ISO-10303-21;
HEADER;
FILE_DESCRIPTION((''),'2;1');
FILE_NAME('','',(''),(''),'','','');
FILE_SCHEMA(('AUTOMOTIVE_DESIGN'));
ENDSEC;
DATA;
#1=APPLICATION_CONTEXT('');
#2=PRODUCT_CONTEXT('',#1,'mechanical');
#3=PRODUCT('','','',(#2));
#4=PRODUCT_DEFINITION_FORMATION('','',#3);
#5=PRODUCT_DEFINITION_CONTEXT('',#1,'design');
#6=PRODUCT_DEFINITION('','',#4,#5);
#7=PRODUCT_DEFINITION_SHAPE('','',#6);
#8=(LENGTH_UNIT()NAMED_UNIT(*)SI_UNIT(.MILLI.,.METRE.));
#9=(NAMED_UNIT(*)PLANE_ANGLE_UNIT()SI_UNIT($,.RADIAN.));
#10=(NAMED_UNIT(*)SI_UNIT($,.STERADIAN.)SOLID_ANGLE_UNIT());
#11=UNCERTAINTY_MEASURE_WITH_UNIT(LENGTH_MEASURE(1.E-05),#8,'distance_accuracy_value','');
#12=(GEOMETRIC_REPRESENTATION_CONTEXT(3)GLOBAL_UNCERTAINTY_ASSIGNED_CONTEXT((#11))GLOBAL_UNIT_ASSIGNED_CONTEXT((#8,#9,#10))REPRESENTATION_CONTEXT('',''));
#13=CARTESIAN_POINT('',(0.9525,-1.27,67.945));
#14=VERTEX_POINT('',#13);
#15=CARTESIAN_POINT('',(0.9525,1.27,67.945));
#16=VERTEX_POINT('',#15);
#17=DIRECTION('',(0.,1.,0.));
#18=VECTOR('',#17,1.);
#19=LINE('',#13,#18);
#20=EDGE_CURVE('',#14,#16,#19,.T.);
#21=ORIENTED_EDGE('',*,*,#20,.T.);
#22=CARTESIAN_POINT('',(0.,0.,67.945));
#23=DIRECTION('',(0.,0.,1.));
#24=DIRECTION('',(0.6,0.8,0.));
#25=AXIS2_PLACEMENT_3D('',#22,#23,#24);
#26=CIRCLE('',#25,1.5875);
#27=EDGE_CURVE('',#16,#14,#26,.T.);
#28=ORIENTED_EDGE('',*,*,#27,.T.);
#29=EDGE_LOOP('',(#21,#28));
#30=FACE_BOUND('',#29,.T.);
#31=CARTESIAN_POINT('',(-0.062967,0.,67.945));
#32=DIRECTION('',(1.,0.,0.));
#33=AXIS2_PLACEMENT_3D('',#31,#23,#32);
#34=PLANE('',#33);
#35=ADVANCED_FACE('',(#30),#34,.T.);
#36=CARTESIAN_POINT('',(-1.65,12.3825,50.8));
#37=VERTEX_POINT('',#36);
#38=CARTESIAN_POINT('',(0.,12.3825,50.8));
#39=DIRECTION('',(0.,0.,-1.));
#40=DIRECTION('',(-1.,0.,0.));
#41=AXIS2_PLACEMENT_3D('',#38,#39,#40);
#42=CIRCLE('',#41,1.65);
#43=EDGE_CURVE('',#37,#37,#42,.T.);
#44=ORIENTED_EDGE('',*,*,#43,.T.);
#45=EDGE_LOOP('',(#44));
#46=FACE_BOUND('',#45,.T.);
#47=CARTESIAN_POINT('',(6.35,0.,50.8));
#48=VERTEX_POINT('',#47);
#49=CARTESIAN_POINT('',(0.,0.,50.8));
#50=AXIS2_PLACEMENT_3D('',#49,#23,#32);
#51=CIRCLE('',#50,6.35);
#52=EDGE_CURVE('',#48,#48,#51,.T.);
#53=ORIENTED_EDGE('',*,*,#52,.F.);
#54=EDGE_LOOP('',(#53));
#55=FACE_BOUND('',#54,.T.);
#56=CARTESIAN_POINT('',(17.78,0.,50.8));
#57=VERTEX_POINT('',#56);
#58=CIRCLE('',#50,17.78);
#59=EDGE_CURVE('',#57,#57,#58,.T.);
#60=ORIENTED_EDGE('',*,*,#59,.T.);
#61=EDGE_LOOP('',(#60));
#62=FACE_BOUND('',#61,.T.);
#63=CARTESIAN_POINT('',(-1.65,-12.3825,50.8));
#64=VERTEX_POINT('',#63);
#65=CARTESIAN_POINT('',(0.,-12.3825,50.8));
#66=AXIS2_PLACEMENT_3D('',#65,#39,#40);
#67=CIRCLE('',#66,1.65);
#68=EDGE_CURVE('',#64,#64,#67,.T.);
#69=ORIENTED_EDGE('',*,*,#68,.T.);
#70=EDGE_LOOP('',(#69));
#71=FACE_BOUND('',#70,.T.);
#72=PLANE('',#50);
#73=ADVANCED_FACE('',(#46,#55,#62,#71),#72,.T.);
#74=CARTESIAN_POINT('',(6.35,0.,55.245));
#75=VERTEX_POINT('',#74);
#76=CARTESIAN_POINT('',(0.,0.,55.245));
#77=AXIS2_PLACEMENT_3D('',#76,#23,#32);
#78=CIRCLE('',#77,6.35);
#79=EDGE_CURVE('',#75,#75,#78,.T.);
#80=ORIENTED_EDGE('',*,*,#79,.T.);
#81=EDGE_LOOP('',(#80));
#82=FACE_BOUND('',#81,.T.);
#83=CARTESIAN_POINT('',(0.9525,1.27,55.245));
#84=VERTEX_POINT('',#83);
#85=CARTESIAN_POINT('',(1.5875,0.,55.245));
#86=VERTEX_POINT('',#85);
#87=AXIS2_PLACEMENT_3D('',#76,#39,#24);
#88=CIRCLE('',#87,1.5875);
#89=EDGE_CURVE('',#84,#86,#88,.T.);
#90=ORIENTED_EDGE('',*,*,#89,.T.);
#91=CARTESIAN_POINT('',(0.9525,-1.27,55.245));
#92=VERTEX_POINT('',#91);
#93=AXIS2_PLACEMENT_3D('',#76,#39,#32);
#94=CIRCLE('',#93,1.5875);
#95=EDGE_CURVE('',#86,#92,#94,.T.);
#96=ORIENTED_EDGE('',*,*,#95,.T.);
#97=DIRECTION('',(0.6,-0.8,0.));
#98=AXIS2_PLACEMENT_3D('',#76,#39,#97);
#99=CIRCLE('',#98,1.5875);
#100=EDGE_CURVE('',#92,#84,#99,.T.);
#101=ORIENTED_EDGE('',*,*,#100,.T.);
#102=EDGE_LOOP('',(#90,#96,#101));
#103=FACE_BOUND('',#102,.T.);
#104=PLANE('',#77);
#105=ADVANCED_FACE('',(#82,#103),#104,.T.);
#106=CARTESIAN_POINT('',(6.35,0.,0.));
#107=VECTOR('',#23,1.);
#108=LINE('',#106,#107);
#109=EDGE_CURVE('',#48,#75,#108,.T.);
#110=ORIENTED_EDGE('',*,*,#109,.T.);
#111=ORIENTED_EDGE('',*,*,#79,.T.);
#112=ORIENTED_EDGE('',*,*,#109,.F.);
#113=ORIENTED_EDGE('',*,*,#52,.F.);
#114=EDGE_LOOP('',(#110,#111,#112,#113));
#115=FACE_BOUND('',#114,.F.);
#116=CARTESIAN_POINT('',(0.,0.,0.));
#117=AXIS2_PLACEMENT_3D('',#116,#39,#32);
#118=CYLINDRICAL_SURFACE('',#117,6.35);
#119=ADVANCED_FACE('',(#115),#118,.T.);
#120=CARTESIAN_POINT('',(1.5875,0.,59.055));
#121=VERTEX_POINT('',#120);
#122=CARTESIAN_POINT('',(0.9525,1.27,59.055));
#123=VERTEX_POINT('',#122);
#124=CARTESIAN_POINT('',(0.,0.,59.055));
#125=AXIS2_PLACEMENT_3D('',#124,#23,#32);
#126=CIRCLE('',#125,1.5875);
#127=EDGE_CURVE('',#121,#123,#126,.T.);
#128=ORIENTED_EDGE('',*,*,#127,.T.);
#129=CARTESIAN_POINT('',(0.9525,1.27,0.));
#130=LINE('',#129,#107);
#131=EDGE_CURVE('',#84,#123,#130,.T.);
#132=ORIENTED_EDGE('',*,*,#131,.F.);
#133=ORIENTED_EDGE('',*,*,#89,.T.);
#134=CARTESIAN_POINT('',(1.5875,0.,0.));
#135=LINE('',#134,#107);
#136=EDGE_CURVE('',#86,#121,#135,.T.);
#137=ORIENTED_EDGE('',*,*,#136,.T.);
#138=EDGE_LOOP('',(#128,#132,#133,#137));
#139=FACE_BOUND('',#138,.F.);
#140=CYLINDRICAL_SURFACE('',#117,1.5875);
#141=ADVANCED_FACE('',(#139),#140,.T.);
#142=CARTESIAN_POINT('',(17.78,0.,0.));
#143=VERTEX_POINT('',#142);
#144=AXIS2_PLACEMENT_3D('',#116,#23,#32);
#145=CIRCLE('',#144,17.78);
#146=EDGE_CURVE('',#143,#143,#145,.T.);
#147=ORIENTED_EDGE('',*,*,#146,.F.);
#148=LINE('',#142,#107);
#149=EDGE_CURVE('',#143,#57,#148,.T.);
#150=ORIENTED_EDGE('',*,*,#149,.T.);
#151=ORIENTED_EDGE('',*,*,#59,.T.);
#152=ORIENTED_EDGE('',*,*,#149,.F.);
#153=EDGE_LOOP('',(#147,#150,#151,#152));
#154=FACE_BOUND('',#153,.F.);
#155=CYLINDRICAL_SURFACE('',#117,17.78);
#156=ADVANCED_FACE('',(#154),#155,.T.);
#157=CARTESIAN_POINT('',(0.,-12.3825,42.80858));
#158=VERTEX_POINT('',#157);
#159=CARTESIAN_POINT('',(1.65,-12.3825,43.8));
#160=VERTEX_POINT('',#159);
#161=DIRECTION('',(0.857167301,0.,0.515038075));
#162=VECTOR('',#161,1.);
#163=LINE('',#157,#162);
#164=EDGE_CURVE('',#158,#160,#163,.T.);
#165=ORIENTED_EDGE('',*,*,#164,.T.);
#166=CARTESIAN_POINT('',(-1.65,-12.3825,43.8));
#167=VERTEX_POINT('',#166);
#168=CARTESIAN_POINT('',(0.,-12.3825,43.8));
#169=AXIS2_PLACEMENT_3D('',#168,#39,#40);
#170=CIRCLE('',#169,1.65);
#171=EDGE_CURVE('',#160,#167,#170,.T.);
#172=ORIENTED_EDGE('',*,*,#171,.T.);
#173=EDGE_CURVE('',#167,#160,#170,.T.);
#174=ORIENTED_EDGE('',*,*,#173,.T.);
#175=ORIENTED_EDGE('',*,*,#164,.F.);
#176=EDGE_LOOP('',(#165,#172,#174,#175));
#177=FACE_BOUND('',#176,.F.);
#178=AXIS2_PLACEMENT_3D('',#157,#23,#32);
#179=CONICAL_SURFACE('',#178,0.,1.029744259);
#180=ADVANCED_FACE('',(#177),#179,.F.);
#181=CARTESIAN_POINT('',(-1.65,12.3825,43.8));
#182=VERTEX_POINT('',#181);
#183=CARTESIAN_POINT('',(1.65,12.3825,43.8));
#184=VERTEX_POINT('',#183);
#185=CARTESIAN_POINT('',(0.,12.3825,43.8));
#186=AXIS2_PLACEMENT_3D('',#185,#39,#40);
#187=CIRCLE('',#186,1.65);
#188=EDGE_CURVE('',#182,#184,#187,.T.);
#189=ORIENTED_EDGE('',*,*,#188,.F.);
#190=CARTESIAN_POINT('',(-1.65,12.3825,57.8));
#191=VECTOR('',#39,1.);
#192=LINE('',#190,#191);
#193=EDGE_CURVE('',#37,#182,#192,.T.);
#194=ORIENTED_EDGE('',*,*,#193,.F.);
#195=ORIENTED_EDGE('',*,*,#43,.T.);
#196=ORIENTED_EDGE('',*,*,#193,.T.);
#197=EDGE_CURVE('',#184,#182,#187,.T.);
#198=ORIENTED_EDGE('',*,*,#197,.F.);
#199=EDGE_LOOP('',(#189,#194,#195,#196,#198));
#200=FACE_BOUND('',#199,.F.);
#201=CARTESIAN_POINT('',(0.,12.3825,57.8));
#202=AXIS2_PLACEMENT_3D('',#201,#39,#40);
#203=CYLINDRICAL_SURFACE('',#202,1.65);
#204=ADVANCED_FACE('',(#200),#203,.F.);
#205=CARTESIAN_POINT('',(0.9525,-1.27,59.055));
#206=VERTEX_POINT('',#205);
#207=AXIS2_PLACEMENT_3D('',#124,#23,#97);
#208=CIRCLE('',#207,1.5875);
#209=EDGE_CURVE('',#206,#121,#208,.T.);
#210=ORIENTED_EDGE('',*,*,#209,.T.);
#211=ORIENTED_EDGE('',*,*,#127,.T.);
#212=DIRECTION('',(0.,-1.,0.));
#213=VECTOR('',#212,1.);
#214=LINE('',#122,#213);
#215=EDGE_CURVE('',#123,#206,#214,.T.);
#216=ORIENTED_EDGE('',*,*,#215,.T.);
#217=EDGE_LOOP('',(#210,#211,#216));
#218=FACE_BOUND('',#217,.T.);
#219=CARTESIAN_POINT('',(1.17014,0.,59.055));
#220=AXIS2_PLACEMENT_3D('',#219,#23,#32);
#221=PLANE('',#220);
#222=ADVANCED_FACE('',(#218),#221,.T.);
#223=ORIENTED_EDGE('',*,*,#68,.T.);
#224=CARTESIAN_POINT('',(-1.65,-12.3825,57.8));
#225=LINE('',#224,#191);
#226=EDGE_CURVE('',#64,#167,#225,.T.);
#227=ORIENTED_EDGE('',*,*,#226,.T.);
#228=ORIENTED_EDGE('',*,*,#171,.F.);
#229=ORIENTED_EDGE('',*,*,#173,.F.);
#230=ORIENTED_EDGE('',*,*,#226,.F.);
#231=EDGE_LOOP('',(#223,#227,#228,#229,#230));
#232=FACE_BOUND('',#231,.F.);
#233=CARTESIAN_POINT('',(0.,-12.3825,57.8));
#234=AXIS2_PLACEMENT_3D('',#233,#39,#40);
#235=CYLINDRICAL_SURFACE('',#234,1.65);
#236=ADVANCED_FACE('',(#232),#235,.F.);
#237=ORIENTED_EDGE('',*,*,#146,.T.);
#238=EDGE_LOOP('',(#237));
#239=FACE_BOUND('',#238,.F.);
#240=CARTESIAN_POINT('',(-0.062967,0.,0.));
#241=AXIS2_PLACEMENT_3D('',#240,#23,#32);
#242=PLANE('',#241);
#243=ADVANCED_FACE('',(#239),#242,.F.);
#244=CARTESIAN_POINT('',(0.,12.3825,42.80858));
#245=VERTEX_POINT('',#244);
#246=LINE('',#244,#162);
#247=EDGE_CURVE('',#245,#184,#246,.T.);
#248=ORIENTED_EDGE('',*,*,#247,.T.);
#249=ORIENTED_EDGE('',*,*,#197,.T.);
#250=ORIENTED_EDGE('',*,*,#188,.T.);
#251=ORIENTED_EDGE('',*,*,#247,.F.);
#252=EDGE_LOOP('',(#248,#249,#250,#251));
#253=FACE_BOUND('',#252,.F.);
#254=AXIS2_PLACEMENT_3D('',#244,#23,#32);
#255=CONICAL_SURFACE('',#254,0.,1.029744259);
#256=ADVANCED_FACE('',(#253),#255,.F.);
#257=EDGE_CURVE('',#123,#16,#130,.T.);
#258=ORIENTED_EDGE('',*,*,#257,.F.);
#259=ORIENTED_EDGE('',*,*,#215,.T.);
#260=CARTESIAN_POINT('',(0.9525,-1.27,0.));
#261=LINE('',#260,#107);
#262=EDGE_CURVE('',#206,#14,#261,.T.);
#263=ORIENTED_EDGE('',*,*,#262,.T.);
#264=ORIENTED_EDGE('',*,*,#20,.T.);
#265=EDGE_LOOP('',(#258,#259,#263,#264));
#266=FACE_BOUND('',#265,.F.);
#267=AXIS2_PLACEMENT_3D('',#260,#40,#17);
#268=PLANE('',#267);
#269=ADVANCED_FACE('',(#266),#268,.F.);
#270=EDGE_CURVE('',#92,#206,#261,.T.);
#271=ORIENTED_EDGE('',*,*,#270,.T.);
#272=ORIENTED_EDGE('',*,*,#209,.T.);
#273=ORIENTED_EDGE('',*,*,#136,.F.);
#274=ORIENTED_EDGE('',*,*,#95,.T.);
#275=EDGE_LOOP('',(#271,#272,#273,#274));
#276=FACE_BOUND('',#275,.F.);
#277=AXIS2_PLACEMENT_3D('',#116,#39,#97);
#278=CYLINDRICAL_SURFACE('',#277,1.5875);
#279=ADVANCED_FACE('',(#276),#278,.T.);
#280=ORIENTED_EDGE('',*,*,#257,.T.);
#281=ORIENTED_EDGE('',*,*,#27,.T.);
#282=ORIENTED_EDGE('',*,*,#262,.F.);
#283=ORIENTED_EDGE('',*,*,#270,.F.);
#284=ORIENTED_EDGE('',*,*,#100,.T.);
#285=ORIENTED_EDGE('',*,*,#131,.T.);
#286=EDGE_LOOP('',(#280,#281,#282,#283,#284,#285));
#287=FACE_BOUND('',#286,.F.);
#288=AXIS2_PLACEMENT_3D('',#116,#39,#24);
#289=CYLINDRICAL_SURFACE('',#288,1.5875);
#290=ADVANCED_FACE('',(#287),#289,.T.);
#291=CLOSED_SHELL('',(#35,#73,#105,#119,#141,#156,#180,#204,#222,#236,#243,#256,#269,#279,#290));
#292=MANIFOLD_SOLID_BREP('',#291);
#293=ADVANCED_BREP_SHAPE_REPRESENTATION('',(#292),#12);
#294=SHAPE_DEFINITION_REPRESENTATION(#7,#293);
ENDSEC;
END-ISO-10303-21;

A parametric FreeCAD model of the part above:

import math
import FreeCAD as App
import Part
import Sketcher
from FreeCAD import Vector
Q = App.Units.Quantity

doc = App.newDocument("Part")
body = doc.addObject("PartDesign::Body", "Body")

# Sketch on XY plane
sketch1 = body.newObject("Sketcher::SketchObject", "Sketch")
sketch1.AttachmentSupport = (doc.getObject("XY_Plane"), [""])
sketch1.MapMode = "FlatFace"
sketch1.addGeometry(Part.Circle(Vector(0, 0, 0), Vector(0, 0, 1), 18), False)
sketch1.addGeometry(Part.Circle(Vector(0, 0, 0), Vector(0, 0, 1), 6), False)
sketch1.addConstraint(Sketcher.Constraint("Coincident", 0, 3, -1, 1))
sketch1.addConstraint(Sketcher.Constraint("Coincident", 1, 3, -1, 1))
sketch1.addConstraint(Sketcher.Constraint("Diameter", 0, Q("1.4 in")))
sketch1.addConstraint(Sketcher.Constraint("Diameter", 1, Q("0.5 in")))
pad1 = body.newObject("PartDesign::Pad", "Pad")
pad1.Profile = sketch1
pad1.Length = Q("2 in")

# Sketch on XY plane
sketch2 = body.newObject("Sketcher::SketchObject", "Sketch001")
sketch2.AttachmentSupport = (doc.getObject("XY_Plane"), [""])
sketch2.MapMode = "FlatFace"
sketch2.addGeometry(Part.Circle(Vector(0, 0, 0), Vector(0, 0, 1), 6.3), False)
sketch2.addGeometry(Part.ArcOfCircle(Part.Circle(Vector(0, 0, 0), Vector(0, 0, 1), 1.6), math.radians(53), math.radians(307)), False)
sketch2.addGeometry(Part.ArcOfCircle(Part.Circle(Vector(0, 0, 0), Vector(0, 0, 1), 1.6), math.radians(0), math.radians(53)), False)
sketch2.addGeometry(Part.ArcOfCircle(Part.Circle(Vector(0, 0, 0), Vector(0, 0, 1), 1.6), math.radians(-53), math.radians(0)), False)
sketch2.addConstraint(Sketcher.Constraint("Tangent", 1, 1, 2, 2))
sketch2.addConstraint(Sketcher.Constraint("Tangent", 2, 1, 3, 2))
sketch2.addConstraint(Sketcher.Constraint("Tangent", 3, 1, 1, 2))
sketch2.addConstraint(Sketcher.Constraint("Coincident", 0, 3, -1, 1))
sketch2.addConstraint(Sketcher.Constraint("Coincident", 1, 3, -1, 1))
sketch2.addConstraint(Sketcher.Constraint("PointOnObject", 2, 1, -1))
sketch2.addConstraint(Sketcher.Constraint("Vertical", 1, 1, 3, 1))
sketch2.addConstraint(Sketcher.Constraint("Diameter", 0, Q("0.5 in")))
sketch2.addConstraint(Sketcher.Constraint("Radius", 1, Q("0.0625 in")))
sketch2.addConstraint(Sketcher.Constraint("DistanceY", -1, 1, 1, 1, Q("0.05 in")))
pad2 = body.newObject("PartDesign::Pad", "Pad001")
pad2.Profile = sketch2
pad2.Length = Q("2.175 in")

# Sketch on XY plane
sketch3 = body.newObject("Sketcher::SketchObject", "Sketch002")
sketch3.AttachmentSupport = (doc.getObject("XY_Plane"), [""])
sketch3.MapMode = "FlatFace"
sketch3.addGeometry(Part.LineSegment(Vector(1, -1.3, 0), Vector(1, 1.3, 0)), False)
sketch3.addGeometry(Part.ArcOfCircle(Part.Circle(Vector(0, 0, 0), Vector(0, 0, 1), 1.6), math.radians(53), math.radians(307)), False)
sketch3.addConstraint(Sketcher.Constraint("Coincident", 0, 1, 1, 2))
sketch3.addConstraint(Sketcher.Constraint("Coincident", 1, 1, 0, 2))
sketch3.addConstraint(Sketcher.Constraint("Vertical", 0))
sketch3.addConstraint(Sketcher.Constraint("Coincident", 1, 3, -1, 1))
sketch3.addConstraint(Sketcher.Constraint("DistanceY", 0, 1, 0, 2, Q("0.1 in")))
sketch3.addConstraint(Sketcher.Constraint("Radius", 1, Q("0.0625 in")))
pad3 = body.newObject("PartDesign::Pad", "Pad002")
pad3.Profile = sketch3
pad3.Length = Q("2.675 in")

# Sketch on XY plane
sketch4 = body.newObject("Sketcher::SketchObject", "Sketch003")
sketch4.AttachmentSupport = (doc.getObject("XY_Plane"), [""])
sketch4.MapMode = "FlatFace"
sketch4.addGeometry(Part.ArcOfCircle(Part.Circle(Vector(0, 0, 0), Vector(0, 0, 1), 1.6), math.radians(-53), math.radians(0)), False)
sketch4.addGeometry(Part.ArcOfCircle(Part.Circle(Vector(0, 0, 0), Vector(0, 0, 1), 1.6), math.radians(0), math.radians(53)), False)
sketch4.addGeometry(Part.LineSegment(Vector(1, 1.3, 0), Vector(1, -1.3, 0)), False)
sketch4.addConstraint(Sketcher.Constraint("Tangent", 0, 2, 1, 1))
sketch4.addConstraint(Sketcher.Constraint("Coincident", 1, 2, 2, 1))
sketch4.addConstraint(Sketcher.Constraint("Coincident", 2, 2, 0, 1))
sketch4.addConstraint(Sketcher.Constraint("Vertical", 2))
sketch4.addConstraint(Sketcher.Constraint("Coincident", 0, 3, -1, 1))
sketch4.addConstraint(Sketcher.Constraint("Equal", 0, 1))
sketch4.addConstraint(Sketcher.Constraint("PointOnObject", 0, 2, -1))
sketch4.addConstraint(Sketcher.Constraint("DistanceY", 2, 2, 2, 1, Q("0.1 in")))
sketch4.addConstraint(Sketcher.Constraint("Radius", 0, Q("0.0625 in")))
pad4 = body.newObject("PartDesign::Pad", "Pad003")
pad4.Profile = sketch4
pad4.Length = Q("2.325 in")

# Sketch on XY plane
sketch5 = body.newObject("Sketcher::SketchObject", "Sketch004")
sketch5.AttachmentSupport = (doc.getObject("XY_Plane"), [""])
sketch5.MapMode = "FlatFace"
sketch5.AttachmentOffset = App.Placement(Vector(0, 0, 2 * 25.4), App.Rotation())
sketch5.addGeometry(Part.Circle(Vector(0, 12.4, 0), Vector(0, 0, 1), 1.6), False)
sketch5.addGeometry(Part.Circle(Vector(0, -12.4, 0), Vector(0, 0, 1), 1.6), False)
sketch5.addConstraint(Sketcher.Constraint("Equal", 0, 1))
sketch5.addConstraint(Sketcher.Constraint("Symmetric", 0, 3, 1, 3, -1, 1))
sketch5.addConstraint(Sketcher.Constraint("PointOnObject", 0, 3, -2))
sketch5.addConstraint(Sketcher.Constraint("Diameter", 0, Q("3.3 mm")))
sketch5.addConstraint(Sketcher.Constraint("DistanceY", 1, 3, 0, 3, Q("0.975 in")))
doc.recompute()
hole = body.newObject("PartDesign::Hole", "Hole")
hole.Profile = sketch5
hole.ThreadType = "None"
hole.Diameter = 3.3
hole.DepthType = "Dimension"
hole.Depth = 7
hole.DrillPoint = "Angled"
hole.DrillPointAngle = 118

doc.recompute()
